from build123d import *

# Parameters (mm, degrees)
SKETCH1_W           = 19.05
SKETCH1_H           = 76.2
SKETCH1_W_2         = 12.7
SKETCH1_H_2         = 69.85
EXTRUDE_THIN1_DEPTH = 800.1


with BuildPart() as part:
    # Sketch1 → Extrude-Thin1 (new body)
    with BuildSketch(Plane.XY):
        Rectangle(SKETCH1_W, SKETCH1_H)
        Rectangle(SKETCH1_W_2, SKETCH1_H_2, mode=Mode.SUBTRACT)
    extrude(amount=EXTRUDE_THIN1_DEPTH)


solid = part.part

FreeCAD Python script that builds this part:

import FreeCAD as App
import Part
import Sketcher

V = App.Vector
Q = App.Units.Quantity


def add_polygon(sketch, points):
    """Adds a closed chain of lines whose ends are joined by coincident constraints."""
    first, n = sketch.GeometryCount, len(points)
    for a, b in zip(points, points[1:] + points[:1]):
        sketch.addGeometry(Part.LineSegment(App.Vector(*a, 0), App.Vector(*b, 0)), False)
    for i in range(n):
        sketch.addConstraint(Sketcher.Constraint("Coincident", first + i, 2, first + (i + 1) % n, 1))

doc = App.newDocument("Part")
body = doc.addObject("PartDesign::Body", "Body")

# Sketch on XY plane
sketch1 = body.newObject("Sketcher::SketchObject", "Sketch")
sketch1.AttachmentSupport = (doc.getObject("XY_Plane"), [""])
sketch1.MapMode = "FlatFace"
add_polygon(sketch1, [(-10, 38), (-10, -38), (10, -38), (10, 38)])  # lines 0-3
add_polygon(sketch1, [(6, -35), (-6, -35), (-6, 35), (6, 35)])  # lines 4-7
sketch1.addConstraint([
    Sketcher.Constraint("Vertical", 0),
    Sketcher.Constraint("Horizontal", 1),
    Sketcher.Constraint("Vertical", 2),
    Sketcher.Constraint("Horizontal", 3),
    Sketcher.Constraint("Horizontal", 4),
    Sketcher.Constraint("Vertical", 5),
    Sketcher.Constraint("Horizontal", 6),
    Sketcher.Constraint("Vertical", 7),
    Sketcher.Constraint("Symmetric", 0, 2, 2, 2, -1, 1),
    Sketcher.Constraint("Symmetric", 4, 2, 6, 2, -1, 1),
    Sketcher.Constraint("DistanceY", 0, 2, 0, 1, Q("3 in")),
    Sketcher.Constraint("DistanceX", 4, 2, 4, 1, Q("0.5 in")),
    Sketcher.Constraint("DistanceX", 1, 1, 1, 2, Q("0.75 in")),
    Sketcher.Constraint("DistanceY", 5, 1, 5, 2, Q("2.75 in")),
])
pad1 = body.newObject("PartDesign::Pad", "Pad")
pad1.Profile = sketch1
pad1.Length = Q("31.5 in")

doc.recompute()
